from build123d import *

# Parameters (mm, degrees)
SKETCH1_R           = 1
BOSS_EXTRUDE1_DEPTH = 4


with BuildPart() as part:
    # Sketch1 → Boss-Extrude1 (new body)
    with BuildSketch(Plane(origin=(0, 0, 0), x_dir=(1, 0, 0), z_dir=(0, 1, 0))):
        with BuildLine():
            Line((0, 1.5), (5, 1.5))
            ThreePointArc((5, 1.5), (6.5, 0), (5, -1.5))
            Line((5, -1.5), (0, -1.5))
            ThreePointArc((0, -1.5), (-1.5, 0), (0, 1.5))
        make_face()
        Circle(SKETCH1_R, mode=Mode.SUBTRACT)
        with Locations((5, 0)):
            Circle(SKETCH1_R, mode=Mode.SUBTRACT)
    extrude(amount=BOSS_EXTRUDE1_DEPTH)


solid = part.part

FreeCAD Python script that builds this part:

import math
import FreeCAD as App
import Part
import Sketcher
from FreeCAD import Vector
Q = App.Units.Quantity

doc = App.newDocument("Part")
body = doc.addObject("PartDesign::Body", "Body")

# Sketch on XZ plane
sketch1 = body.newObject("Sketcher::SketchObject", "Sketch")
sketch1.AttachmentSupport = (doc.getObject("XZ_Plane"), [""])
sketch1.MapMode = "FlatFace"
sketch1.addGeometry([
    Part.LineSegment(Vector(5, -1.5, 0), Vector(0, -1.5, 0)),  # 0
    Part.ArcOfCircle(Part.Circle(Vector(0, 0, 0), Vector(0, 0, 1), 1.5), math.radians(90), math.radians(270)),  # 1
    Part.LineSegment(Vector(0, 1.5, 0), Vector(5, 1.5, 0)),  # 2
    Part.ArcOfCircle(Part.Circle(Vector(5, 0, 0), Vector(0, 0, 1), 1.5), math.radians(-90), math.radians(90)),  # 3
    Part.Circle(Vector(5, 0, 0), Vector(0, 0, 1), 1),  # 4
    Part.Circle(Vector(0, 0, 0), Vector(0, 0, 1), 1),  # 5
], False)
sketch1.addConstraint([
    Sketcher.Constraint("Tangent", 0, 2, 1, 2),
    Sketcher.Constraint("Tangent", 1, 1, 2, 1),
    Sketcher.Constraint("Tangent", 2, 2, 3, 2),
    Sketcher.Constraint("Tangent", 3, 1, 0, 1),
    Sketcher.Constraint("Horizontal", 0),
    Sketcher.Constraint("Horizontal", 2),
    Sketcher.Constraint("Coincident", 1, 3, -1, 1),
    Sketcher.Constraint("Coincident", 5, 3, -1, 1),
    Sketcher.Constraint("Coincident", 4, 3, 3, 3),
    Sketcher.Constraint("Equal", 4, 5),
    Sketcher.Constraint("Diameter", 4, Q("2 mm")),
    Sketcher.Constraint("Radius", 1, Q("1.5 mm")),
    Sketcher.Constraint("DistanceX", 0, 2, 0, 1, Q("5 mm")),
])
pad1 = body.newObject("PartDesign::Pad", "Pad")
pad1.Profile = sketch1
pad1.Length = 4
pad1.Reversed = True

doc.recompute()
